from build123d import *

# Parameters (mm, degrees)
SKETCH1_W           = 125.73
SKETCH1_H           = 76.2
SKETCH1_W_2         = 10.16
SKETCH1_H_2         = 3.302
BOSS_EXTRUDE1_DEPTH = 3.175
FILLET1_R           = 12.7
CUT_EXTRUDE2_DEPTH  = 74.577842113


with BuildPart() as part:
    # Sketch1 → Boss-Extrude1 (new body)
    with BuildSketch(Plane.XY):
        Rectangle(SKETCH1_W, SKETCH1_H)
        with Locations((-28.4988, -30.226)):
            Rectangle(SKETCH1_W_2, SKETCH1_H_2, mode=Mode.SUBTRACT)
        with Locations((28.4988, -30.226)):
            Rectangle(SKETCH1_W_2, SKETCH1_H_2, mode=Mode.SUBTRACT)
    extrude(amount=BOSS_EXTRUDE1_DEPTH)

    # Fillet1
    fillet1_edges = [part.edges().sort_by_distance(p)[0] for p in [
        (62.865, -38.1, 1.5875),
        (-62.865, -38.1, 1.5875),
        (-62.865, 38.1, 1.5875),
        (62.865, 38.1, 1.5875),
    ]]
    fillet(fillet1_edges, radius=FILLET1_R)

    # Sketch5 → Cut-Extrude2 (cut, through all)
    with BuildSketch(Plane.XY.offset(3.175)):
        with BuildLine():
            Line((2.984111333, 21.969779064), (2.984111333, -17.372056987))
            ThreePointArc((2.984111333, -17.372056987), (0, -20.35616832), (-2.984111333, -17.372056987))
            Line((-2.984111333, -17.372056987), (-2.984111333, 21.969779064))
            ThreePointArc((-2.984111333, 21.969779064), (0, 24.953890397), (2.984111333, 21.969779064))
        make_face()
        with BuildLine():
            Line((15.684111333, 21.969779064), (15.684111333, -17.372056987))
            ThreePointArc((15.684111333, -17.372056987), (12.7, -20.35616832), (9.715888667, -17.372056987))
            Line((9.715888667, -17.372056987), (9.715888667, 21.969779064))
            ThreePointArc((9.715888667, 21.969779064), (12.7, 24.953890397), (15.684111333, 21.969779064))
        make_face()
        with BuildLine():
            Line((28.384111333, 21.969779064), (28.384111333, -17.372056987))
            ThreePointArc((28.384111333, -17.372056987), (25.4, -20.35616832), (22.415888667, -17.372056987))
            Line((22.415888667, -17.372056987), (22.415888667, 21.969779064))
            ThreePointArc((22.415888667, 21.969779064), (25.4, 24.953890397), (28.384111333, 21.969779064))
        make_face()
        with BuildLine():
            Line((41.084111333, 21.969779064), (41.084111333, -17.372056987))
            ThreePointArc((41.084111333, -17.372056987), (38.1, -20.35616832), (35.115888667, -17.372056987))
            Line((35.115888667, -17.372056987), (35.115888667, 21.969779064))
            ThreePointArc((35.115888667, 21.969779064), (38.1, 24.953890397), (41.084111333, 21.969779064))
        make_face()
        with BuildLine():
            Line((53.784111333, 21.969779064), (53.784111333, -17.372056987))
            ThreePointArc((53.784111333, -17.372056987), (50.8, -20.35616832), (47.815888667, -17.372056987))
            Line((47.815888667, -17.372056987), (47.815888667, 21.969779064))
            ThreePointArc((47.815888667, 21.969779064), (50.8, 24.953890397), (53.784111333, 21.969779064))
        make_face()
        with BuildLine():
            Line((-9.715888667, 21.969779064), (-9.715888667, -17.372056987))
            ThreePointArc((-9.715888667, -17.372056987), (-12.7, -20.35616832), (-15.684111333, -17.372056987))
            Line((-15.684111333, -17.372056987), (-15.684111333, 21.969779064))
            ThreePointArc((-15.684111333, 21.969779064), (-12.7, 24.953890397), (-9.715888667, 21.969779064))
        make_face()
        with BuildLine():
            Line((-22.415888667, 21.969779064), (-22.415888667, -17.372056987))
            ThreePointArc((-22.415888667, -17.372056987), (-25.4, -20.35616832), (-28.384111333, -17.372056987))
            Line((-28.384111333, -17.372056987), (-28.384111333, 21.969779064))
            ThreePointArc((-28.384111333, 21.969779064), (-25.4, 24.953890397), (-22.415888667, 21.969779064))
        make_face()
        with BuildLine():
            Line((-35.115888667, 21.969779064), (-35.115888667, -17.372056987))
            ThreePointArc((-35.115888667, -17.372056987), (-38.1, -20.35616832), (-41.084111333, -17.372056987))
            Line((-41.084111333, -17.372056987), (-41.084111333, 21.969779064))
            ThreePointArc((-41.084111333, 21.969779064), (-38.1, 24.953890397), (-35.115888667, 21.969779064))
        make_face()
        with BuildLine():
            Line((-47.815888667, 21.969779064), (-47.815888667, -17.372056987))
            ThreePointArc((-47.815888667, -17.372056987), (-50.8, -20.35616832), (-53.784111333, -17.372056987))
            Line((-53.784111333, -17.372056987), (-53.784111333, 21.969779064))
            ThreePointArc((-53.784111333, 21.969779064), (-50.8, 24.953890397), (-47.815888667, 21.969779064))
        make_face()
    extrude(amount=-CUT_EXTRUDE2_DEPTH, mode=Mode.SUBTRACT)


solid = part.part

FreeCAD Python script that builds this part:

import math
import FreeCAD as App
import Part
import Sketcher
Q = App.Units.Quantity


def edges_at(feature, points):
    """Names of the edges that pass closest to the given points."""
    edges = feature.Shape.Edges
    near = lambda p: min(range(len(edges)), key=lambda i: edges[i].distToShape(Part.Vertex(*p))[0])
    return sorted({f"Edge{near(p) + 1}" for p in points})


def add_polygon(sketch, points):
    """Adds a closed chain of lines whose ends are joined by coincident constraints."""
    first, n = sketch.GeometryCount, len(points)
    for a, b in zip(points, points[1:] + points[:1]):
        sketch.addGeometry(Part.LineSegment(App.Vector(*a, 0), App.Vector(*b, 0)), False)
    for i in range(n):
        sketch.addConstraint(Sketcher.Constraint("Coincident", first + i, 2, first + (i + 1) % n, 1))

doc = App.newDocument("Part")
body = doc.addObject("PartDesign::Body", "Body")

sketch1 = body.newObject("Sketcher::SketchObject", "Sketch")
sketch1.AttachmentSupport = (doc.getObject("XY_Plane"), [""])
sketch1.MapMode = "FlatFace"
add_polygon(sketch1, [(-62.9, 38.1), (-62.9, -38.1), (62.9, -38.1), (62.9, 38.1)])
add_polygon(sketch1, [(-23.4, -31.9), (-33.6, -31.9), (-33.6, -28.6), (-23.4, -28.6)])
add_polygon(sketch1, [(33.6, -31.9), (23.4, -31.9), (23.4, -28.6), (33.6, -28.6)])
sketch1.addConstraint(Sketcher.Constraint("Vertical", 0))
sketch1.addConstraint(Sketcher.Constraint("Horizontal", 1))
sketch1.addConstraint(Sketcher.Constraint("Vertical", 2))
sketch1.addConstraint(Sketcher.Constraint("Horizontal", 3))
sketch1.addConstraint(Sketcher.Constraint("Horizontal", 4))
sketch1.addConstraint(Sketcher.Constraint("Vertical", 5))
sketch1.addConstraint(Sketcher.Constraint("Horizontal", 6))
sketch1.addConstraint(Sketcher.Constraint("Vertical", 7))
sketch1.addConstraint(Sketcher.Constraint("Horizontal", 8))
sketch1.addConstraint(Sketcher.Constraint("Vertical", 9))
sketch1.addConstraint(Sketcher.Constraint("Horizontal", 10))
sketch1.addConstraint(Sketcher.Constraint("Vertical", 11))
sketch1.addConstraint(Sketcher.Constraint("Symmetric", 0, 2, 2, 2, -1, 1))
sketch1.addConstraint(Sketcher.Constraint("Symmetric", 7, 2, 8, 2, -2))
sketch1.addConstraint(Sketcher.Constraint("Symmetric", 5, 2, 10, 2, -2))
sketch1.addConstraint(Sketcher.Constraint("DistanceY", 0, 2, 0, 1, Q("3 in")))
sketch1.addConstraint(Sketcher.Constraint("DistanceX", 4, 2, 4, 1, Q("0.4 in")))
sketch1.addConstraint(Sketcher.Constraint("DistanceX", 1, 1, 1, 2, Q("4.95 in")))
sketch1.addConstraint(Sketcher.Constraint("DistanceY", 5, 1, 5, 2, Q("0.13 in")))
sketch1.addConstraint(Sketcher.Constraint("DistanceX", 4, 2, -1, 1, Q("1.322 in")))
sketch1.addConstraint(Sketcher.Constraint("DistanceY", 4, 2, -1, 1, Q("1.255 in")))
pad1 = body.newObject("PartDesign::Pad", "Pad")
pad1.Profile = sketch1
pad1.Length = Q("0.125 in")
doc.recompute()

fillet = body.newObject("PartDesign::Fillet", "Fillet")
fillet.Base = (pad1, edges_at(pad1, [
    (62.865, -38.1, 1.587),
    (-62.865, -38.1, 1.587),
    (-62.865, 38.1, 1.587),
    (62.865, 38.1, 1.587),
]))
fillet.Radius = Q("0.5 in")

sketch2 = body.newObject("Sketcher::SketchObject", "Sketch001")
sketch2.AttachmentSupport = (doc.getObject("XY_Plane"), [""])
sketch2.MapMode = "FlatFace"
sketch2.AttachmentOffset = App.Placement(App.Vector(0, 0, 0.125 * 25.4), App.Rotation())
sketch2.addGeometry(Part.LineSegment(App.Vector(3, -17.4, 0), App.Vector(3, 22, 0)), False)
sketch2.addGeometry(Part.ArcOfCircle(Part.Circle(App.Vector(0, 22, 0), App.Vector(0, 0, 1), 3), math.radians(0), math.radians(180)), False)
sketch2.addGeometry(Part.LineSegment(App.Vector(-3, 22, 0), App.Vector(-3, -17.4, 0)), False)
sketch2.addGeometry(Part.ArcOfCircle(Part.Circle(App.Vector(0, -17.4, 0), App.Vector(0, 0, 1), 3), math.radians(180), math.radians(360)), False)
sketch2.addGeometry(Part.LineSegment(App.Vector(15.7, -17.4, 0), App.Vector(15.7, 22, 0)), False)
sketch2.addGeometry(Part.ArcOfCircle(Part.Circle(App.Vector(12.7, 22, 0), App.Vector(0, 0, 1), 3), math.radians(0), math.radians(180)), False)
sketch2.addGeometry(Part.LineSegment(App.Vector(9.7, 22, 0), App.Vector(9.7, -17.4, 0)), False)
sketch2.addGeometry(Part.ArcOfCircle(Part.Circle(App.Vector(12.7, -17.4, 0), App.Vector(0, 0, 1), 3), math.radians(180), math.radians(360)), False)
sketch2.addGeometry(Part.LineSegment(App.Vector(28.4, -17.4, 0), App.Vector(28.4, 22, 0)), False)
sketch2.addGeometry(Part.ArcOfCircle(Part.Circle(App.Vector(25.4, 22, 0), App.Vector(0, 0, 1), 3), math.radians(0), math.radians(180)), False)
sketch2.addGeometry(Part.LineSegment(App.Vector(22.4, 22, 0), App.Vector(22.4, -17.4, 0)), False)
sketch2.addGeometry(Part.ArcOfCircle(Part.Circle(App.Vector(25.4, -17.4, 0), App.Vector(0, 0, 1), 3), math.radians(180), math.radians(360)), False)
sketch2.addGeometry(Part.LineSegment(App.Vector(41.1, -17.4, 0), App.Vector(41.1, 22, 0)), False)
sketch2.addGeometry(Part.ArcOfCircle(Part.Circle(App.Vector(38.1, 22, 0), App.Vector(0, 0, 1), 3), math.radians(0), math.radians(180)), False)
sketch2.addGeometry(Part.LineSegment(App.Vector(35.1, 22, 0), App.Vector(35.1, -17.4, 0)), False)
sketch2.addGeometry(Part.ArcOfCircle(Part.Circle(App.Vector(38.1, -17.4, 0), App.Vector(0, 0, 1), 3), math.radians(180), math.radians(360)), False)
sketch2.addGeometry(Part.LineSegment(App.Vector(53.8, -17.4, 0), App.Vector(53.8, 22, 0)), False)
sketch2.addGeometry(Part.ArcOfCircle(Part.Circle(App.Vector(50.8, 22, 0), App.Vector(0, 0, 1), 3), math.radians(0), math.radians(180)), False)
sketch2.addGeometry(Part.LineSegment(App.Vector(47.8, 22, 0), App.Vector(47.8, -17.4, 0)), False)
sketch2.addGeometry(Part.ArcOfCircle(Part.Circle(App.Vector(50.8, -17.4, 0), App.Vector(0, 0, 1), 3), math.radians(180), math.radians(360)), False)
sketch2.addGeometry(Part.LineSegment(App.Vector(-9.7, -17.4, 0), App.Vector(-9.7, 22, 0)), False)
sketch2.addGeometry(Part.ArcOfCircle(Part.Circle(App.Vector(-12.7, 22, 0), App.Vector(0, 0, 1), 3), math.radians(0), math.radians(180)), False)
sketch2.addGeometry(Part.LineSegment(App.Vector(-15.7, 22, 0), App.Vector(-15.7, -17.4, 0)), False)
sketch2.addGeometry(Part.ArcOfCircle(Part.Circle(App.Vector(-12.7, -17.4, 0), App.Vector(0, 0, 1), 3), math.radians(180), math.radians(360)), False)
sketch2.addGeometry(Part.LineSegment(App.Vector(-22.4, -17.4, 0), App.Vector(-22.4, 22, 0)), False)
sketch2.addGeometry(Part.ArcOfCircle(Part.Circle(App.Vector(-25.4, 22, 0), App.Vector(0, 0, 1), 3), math.radians(0), math.radians(180)), False)
sketch2.addGeometry(Part.LineSegment(App.Vector(-28.4, 22, 0), App.Vector(-28.4, -17.4, 0)), False)
sketch2.addGeometry(Part.ArcOfCircle(Part.Circle(App.Vector(-25.4, -17.4, 0), App.Vector(0, 0, 1), 3), math.radians(180), math.radians(360)), False)
sketch2.addGeometry(Part.LineSegment(App.Vector(-35.1, -17.4, 0), App.Vector(-35.1, 22, 0)), False)
sketch2.addGeometry(Part.ArcOfCircle(Part.Circle(App.Vector(-38.1, 22, 0), App.Vector(0, 0, 1), 3), math.radians(0), math.radians(180)), False)
sketch2.addGeometry(Part.LineSegment(App.Vector(-41.1, 22, 0), App.Vector(-41.1, -17.4, 0)), False)
sketch2.addGeometry(Part.ArcOfCircle(Part.Circle(App.Vector(-38.1, -17.4, 0), App.Vector(0, 0, 1), 3), math.radians(180), math.radians(360)), False)
sketch2.addGeometry(Part.LineSegment(App.Vector(-47.8, -17.4, 0), App.Vector(-47.8, 22, 0)), False)
sketch2.addGeometry(Part.ArcOfCircle(Part.Circle(App.Vector(-50.8, 22, 0), App.Vector(0, 0, 1), 3), math.radians(0), math.radians(180)), False)
sketch2.addGeometry(Part.LineSegment(App.Vector(-53.8, 22, 0), App.Vector(-53.8, -17.4, 0)), False)
sketch2.addGeometry(Part.ArcOfCircle(Part.Circle(App.Vector(-50.8, -17.4, 0), App.Vector(0, 0, 1), 3), math.radians(180), math.radians(360)), False)
sketch2.addConstraint(Sketcher.Constraint("Tangent", 0, 2, 1, 1))
sketch2.addConstraint(Sketcher.Constraint("Tangent", 1, 2, 2, 1))
sketch2.addConstraint(Sketcher.Constraint("Tangent", 2, 2, 3, 1))
sketch2.addConstraint(Sketcher.Constraint("Tangent", 3, 2, 0, 1))
sketch2.addConstraint(Sketcher.Constraint("Tangent", 4, 2, 5, 1))
sketch2.addConstraint(Sketcher.Constraint("Tangent", 5, 2, 6, 1))
sketch2.addConstraint(Sketcher.Constraint("Tangent", 6, 2, 7, 1))
sketch2.addConstraint(Sketcher.Constraint("Tangent", 7, 2, 4, 1))
sketch2.addConstraint(Sketcher.Constraint("Tangent", 8, 2, 9, 1))
sketch2.addConstraint(Sketcher.Constraint("Tangent", 9, 2, 10, 1))
sketch2.addConstraint(Sketcher.Constraint("Tangent", 10, 2, 11, 1))
sketch2.addConstraint(Sketcher.Constraint("Tangent", 11, 2, 8, 1))
sketch2.addConstraint(Sketcher.Constraint("Tangent", 12, 2, 13, 1))
sketch2.addConstraint(Sketcher.Constraint("Tangent", 13, 2, 14, 1))
sketch2.addConstraint(Sketcher.Constraint("Tangent", 14, 2, 15, 1))
sketch2.addConstraint(Sketcher.Constraint("Tangent", 15, 2, 12, 1))
sketch2.addConstraint(Sketcher.Constraint("Tangent", 16, 2, 17, 1))
sketch2.addConstraint(Sketcher.Constraint("Tangent", 17, 2, 18, 1))
sketch2.addConstraint(Sketcher.Constraint("Tangent", 18, 2, 19, 1))
sketch2.addConstraint(Sketcher.Constraint("Tangent", 19, 2, 16, 1))
sketch2.addConstraint(Sketcher.Constraint("Tangent", 20, 2, 21, 1))
sketch2.addConstraint(Sketcher.Constraint("Tangent", 21, 2, 22, 1))
sketch2.addConstraint(Sketcher.Constraint("Tangent", 22, 2, 23, 1))
sketch2.addConstraint(Sketcher.Constraint("Tangent", 23, 2, 20, 1))
sketch2.addConstraint(Sketcher.Constraint("Tangent", 24, 2, 25, 1))
sketch2.addConstraint(Sketcher.Constraint("Tangent", 25, 2, 26, 1))
sketch2.addConstraint(Sketcher.Constraint("Tangent", 26, 2, 27, 1))
sketch2.addConstraint(Sketcher.Constraint("Tangent", 27, 2, 24, 1))
sketch2.addConstraint(Sketcher.Constraint("Tangent", 28, 2, 29, 1))
sketch2.addConstraint(Sketcher.Constraint("Tangent", 29, 2, 30, 1))
sketch2.addConstraint(Sketcher.Constraint("Tangent", 30, 2, 31, 1))
sketch2.addConstraint(Sketcher.Constraint("Tangent", 31, 2, 28, 1))
sketch2.addConstraint(Sketcher.Constraint("Tangent", 32, 2, 33, 1))
sketch2.addConstraint(Sketcher.Constraint("Tangent", 33, 2, 34, 1))
sketch2.addConstraint(Sketcher.Constraint("Tangent", 34, 2, 35, 1))
sketch2.addConstraint(Sketcher.Constraint("Tangent", 35, 2, 32, 1))
sketch2.addConstraint(Sketcher.Constraint("Vertical", 0))
sketch2.addConstraint(Sketcher.Constraint("Vertical", 2))
sketch2.addConstraint(Sketcher.Constraint("Vertical", 4))
sketch2.addConstraint(Sketcher.Constraint("Vertical", 6))
sketch2.addConstraint(Sketcher.Constraint("Vertical", 8))
sketch2.addConstraint(Sketcher.Constraint("Vertical", 10))
sketch2.addConstraint(Sketcher.Constraint("Vertical", 12))
sketch2.addConstraint(Sketcher.Constraint("Vertical", 14))
sketch2.addConstraint(Sketcher.Constraint("Vertical", 16))
sketch2.addConstraint(Sketcher.Constraint("Vertical", 18))
sketch2.addConstraint(Sketcher.Constraint("Vertical", 20))
sketch2.addConstraint(Sketcher.Constraint("Vertical", 22))
sketch2.addConstraint(Sketcher.Constraint("Vertical", 24))
sketch2.addConstraint(Sketcher.Constraint("Vertical", 26))
sketch2.addConstraint(Sketcher.Constraint("Vertical", 28))
sketch2.addConstraint(Sketcher.Constraint("Vertical", 30))
sketch2.addConstraint(Sketcher.Constraint("Vertical", 32))
sketch2.addConstraint(Sketcher.Constraint("Vertical", 34))
sketch2.addConstraint(Sketcher.Constraint("Equal", 3, 5))
sketch2.addConstraint(Sketcher.Constraint("Equal", 7, 9))
sketch2.addConstraint(Sketcher.Constraint("Equal", 11, 13))
sketch2.addConstraint(Sketcher.Constraint("Equal", 15, 17))
sketch2.addConstraint(Sketcher.Constraint("Equal", 19, 21))
sketch2.addConstraint(Sketcher.Constraint("Equal", 23, 25))
sketch2.addConstraint(Sketcher.Constraint("Equal", 27, 29))
sketch2.addConstraint(Sketcher.Constraint("Equal", 31, 33))
sketch2.addConstraint(Sketcher.Constraint("Symmetric", 5, 3, 21, 3, -2))
sketch2.addConstraint(Sketcher.Constraint("Symmetric", 9, 3, 25, 3, -2))
sketch2.addConstraint(Sketcher.Constraint("Symmetric", 13, 3, 29, 3, -2))
sketch2.addConstraint(Sketcher.Constraint("Symmetric", 17, 3, 33, 3, -2))
sketch2.addConstraint(Sketcher.Constraint("PointOnObject", 1, 3, -2))
sketch2.addConstraint(Sketcher.Constraint("Horizontal", 1, 3, 5, 3))
sketch2.addConstraint(Sketcher.Constraint("Horizontal", 3, 3, 7, 3))
sketch2.addConstraint(Sketcher.Constraint("Horizontal", 5, 3, 9, 3))
sketch2.addConstraint(Sketcher.Constraint("Horizontal", 7, 3, 11, 3))
sketch2.addConstraint(Sketcher.Constraint("Horizontal", 9, 3, 13, 3))
sketch2.addConstraint(Sketcher.Constraint("Horizontal", 11, 3, 15, 3))
sketch2.addConstraint(Sketcher.Constraint("Horizontal", 13, 3, 17, 3))
sketch2.addConstraint(Sketcher.Constraint("Horizontal", 15, 3, 19, 3))
sketch2.addConstraint(Sketcher.Constraint("Horizontal", 19, 3, 23, 3))
sketch2.addConstraint(Sketcher.Constraint("Horizontal", 23, 3, 27, 3))
sketch2.addConstraint(Sketcher.Constraint("Horizontal", 27, 3, 31, 3))
sketch2.addConstraint(Sketcher.Constraint("Horizontal", 31, 3, 35, 3))
sketch2.addConstraint(Sketcher.Constraint("DistanceX", -1, 1, 9, 3, Q("1 in")))
sketch2.addConstraint(Sketcher.Constraint("DistanceX", -1, 1, 17, 3, Q("2 in")))
sketch2.addConstraint(Sketcher.Constraint("DistanceX", 5, 3, 13, 3, Q("1 in")))
sketch2.addConstraint(Sketcher.Constraint("DistanceX", 21, 3, 5, 3, Q("1 in")))
sketch2.addConstraint(Sketcher.Constraint("Radius", 1, Q("2.984111 mm")))
sketch2.addConstraint(Sketcher.Constraint("DistanceY", 0, 1, 0, 2, Q("39.341836 mm")))
sketch2.addConstraint(Sketcher.Constraint("DistanceY", -1, 1, 1, 3, Q("21.969779 mm")))
pocket1 = body.newObject("PartDesign::Pocket", "Pocket")
pocket1.Profile = sketch2
pocket1.Type = "ThroughAll"

doc.recompute()
